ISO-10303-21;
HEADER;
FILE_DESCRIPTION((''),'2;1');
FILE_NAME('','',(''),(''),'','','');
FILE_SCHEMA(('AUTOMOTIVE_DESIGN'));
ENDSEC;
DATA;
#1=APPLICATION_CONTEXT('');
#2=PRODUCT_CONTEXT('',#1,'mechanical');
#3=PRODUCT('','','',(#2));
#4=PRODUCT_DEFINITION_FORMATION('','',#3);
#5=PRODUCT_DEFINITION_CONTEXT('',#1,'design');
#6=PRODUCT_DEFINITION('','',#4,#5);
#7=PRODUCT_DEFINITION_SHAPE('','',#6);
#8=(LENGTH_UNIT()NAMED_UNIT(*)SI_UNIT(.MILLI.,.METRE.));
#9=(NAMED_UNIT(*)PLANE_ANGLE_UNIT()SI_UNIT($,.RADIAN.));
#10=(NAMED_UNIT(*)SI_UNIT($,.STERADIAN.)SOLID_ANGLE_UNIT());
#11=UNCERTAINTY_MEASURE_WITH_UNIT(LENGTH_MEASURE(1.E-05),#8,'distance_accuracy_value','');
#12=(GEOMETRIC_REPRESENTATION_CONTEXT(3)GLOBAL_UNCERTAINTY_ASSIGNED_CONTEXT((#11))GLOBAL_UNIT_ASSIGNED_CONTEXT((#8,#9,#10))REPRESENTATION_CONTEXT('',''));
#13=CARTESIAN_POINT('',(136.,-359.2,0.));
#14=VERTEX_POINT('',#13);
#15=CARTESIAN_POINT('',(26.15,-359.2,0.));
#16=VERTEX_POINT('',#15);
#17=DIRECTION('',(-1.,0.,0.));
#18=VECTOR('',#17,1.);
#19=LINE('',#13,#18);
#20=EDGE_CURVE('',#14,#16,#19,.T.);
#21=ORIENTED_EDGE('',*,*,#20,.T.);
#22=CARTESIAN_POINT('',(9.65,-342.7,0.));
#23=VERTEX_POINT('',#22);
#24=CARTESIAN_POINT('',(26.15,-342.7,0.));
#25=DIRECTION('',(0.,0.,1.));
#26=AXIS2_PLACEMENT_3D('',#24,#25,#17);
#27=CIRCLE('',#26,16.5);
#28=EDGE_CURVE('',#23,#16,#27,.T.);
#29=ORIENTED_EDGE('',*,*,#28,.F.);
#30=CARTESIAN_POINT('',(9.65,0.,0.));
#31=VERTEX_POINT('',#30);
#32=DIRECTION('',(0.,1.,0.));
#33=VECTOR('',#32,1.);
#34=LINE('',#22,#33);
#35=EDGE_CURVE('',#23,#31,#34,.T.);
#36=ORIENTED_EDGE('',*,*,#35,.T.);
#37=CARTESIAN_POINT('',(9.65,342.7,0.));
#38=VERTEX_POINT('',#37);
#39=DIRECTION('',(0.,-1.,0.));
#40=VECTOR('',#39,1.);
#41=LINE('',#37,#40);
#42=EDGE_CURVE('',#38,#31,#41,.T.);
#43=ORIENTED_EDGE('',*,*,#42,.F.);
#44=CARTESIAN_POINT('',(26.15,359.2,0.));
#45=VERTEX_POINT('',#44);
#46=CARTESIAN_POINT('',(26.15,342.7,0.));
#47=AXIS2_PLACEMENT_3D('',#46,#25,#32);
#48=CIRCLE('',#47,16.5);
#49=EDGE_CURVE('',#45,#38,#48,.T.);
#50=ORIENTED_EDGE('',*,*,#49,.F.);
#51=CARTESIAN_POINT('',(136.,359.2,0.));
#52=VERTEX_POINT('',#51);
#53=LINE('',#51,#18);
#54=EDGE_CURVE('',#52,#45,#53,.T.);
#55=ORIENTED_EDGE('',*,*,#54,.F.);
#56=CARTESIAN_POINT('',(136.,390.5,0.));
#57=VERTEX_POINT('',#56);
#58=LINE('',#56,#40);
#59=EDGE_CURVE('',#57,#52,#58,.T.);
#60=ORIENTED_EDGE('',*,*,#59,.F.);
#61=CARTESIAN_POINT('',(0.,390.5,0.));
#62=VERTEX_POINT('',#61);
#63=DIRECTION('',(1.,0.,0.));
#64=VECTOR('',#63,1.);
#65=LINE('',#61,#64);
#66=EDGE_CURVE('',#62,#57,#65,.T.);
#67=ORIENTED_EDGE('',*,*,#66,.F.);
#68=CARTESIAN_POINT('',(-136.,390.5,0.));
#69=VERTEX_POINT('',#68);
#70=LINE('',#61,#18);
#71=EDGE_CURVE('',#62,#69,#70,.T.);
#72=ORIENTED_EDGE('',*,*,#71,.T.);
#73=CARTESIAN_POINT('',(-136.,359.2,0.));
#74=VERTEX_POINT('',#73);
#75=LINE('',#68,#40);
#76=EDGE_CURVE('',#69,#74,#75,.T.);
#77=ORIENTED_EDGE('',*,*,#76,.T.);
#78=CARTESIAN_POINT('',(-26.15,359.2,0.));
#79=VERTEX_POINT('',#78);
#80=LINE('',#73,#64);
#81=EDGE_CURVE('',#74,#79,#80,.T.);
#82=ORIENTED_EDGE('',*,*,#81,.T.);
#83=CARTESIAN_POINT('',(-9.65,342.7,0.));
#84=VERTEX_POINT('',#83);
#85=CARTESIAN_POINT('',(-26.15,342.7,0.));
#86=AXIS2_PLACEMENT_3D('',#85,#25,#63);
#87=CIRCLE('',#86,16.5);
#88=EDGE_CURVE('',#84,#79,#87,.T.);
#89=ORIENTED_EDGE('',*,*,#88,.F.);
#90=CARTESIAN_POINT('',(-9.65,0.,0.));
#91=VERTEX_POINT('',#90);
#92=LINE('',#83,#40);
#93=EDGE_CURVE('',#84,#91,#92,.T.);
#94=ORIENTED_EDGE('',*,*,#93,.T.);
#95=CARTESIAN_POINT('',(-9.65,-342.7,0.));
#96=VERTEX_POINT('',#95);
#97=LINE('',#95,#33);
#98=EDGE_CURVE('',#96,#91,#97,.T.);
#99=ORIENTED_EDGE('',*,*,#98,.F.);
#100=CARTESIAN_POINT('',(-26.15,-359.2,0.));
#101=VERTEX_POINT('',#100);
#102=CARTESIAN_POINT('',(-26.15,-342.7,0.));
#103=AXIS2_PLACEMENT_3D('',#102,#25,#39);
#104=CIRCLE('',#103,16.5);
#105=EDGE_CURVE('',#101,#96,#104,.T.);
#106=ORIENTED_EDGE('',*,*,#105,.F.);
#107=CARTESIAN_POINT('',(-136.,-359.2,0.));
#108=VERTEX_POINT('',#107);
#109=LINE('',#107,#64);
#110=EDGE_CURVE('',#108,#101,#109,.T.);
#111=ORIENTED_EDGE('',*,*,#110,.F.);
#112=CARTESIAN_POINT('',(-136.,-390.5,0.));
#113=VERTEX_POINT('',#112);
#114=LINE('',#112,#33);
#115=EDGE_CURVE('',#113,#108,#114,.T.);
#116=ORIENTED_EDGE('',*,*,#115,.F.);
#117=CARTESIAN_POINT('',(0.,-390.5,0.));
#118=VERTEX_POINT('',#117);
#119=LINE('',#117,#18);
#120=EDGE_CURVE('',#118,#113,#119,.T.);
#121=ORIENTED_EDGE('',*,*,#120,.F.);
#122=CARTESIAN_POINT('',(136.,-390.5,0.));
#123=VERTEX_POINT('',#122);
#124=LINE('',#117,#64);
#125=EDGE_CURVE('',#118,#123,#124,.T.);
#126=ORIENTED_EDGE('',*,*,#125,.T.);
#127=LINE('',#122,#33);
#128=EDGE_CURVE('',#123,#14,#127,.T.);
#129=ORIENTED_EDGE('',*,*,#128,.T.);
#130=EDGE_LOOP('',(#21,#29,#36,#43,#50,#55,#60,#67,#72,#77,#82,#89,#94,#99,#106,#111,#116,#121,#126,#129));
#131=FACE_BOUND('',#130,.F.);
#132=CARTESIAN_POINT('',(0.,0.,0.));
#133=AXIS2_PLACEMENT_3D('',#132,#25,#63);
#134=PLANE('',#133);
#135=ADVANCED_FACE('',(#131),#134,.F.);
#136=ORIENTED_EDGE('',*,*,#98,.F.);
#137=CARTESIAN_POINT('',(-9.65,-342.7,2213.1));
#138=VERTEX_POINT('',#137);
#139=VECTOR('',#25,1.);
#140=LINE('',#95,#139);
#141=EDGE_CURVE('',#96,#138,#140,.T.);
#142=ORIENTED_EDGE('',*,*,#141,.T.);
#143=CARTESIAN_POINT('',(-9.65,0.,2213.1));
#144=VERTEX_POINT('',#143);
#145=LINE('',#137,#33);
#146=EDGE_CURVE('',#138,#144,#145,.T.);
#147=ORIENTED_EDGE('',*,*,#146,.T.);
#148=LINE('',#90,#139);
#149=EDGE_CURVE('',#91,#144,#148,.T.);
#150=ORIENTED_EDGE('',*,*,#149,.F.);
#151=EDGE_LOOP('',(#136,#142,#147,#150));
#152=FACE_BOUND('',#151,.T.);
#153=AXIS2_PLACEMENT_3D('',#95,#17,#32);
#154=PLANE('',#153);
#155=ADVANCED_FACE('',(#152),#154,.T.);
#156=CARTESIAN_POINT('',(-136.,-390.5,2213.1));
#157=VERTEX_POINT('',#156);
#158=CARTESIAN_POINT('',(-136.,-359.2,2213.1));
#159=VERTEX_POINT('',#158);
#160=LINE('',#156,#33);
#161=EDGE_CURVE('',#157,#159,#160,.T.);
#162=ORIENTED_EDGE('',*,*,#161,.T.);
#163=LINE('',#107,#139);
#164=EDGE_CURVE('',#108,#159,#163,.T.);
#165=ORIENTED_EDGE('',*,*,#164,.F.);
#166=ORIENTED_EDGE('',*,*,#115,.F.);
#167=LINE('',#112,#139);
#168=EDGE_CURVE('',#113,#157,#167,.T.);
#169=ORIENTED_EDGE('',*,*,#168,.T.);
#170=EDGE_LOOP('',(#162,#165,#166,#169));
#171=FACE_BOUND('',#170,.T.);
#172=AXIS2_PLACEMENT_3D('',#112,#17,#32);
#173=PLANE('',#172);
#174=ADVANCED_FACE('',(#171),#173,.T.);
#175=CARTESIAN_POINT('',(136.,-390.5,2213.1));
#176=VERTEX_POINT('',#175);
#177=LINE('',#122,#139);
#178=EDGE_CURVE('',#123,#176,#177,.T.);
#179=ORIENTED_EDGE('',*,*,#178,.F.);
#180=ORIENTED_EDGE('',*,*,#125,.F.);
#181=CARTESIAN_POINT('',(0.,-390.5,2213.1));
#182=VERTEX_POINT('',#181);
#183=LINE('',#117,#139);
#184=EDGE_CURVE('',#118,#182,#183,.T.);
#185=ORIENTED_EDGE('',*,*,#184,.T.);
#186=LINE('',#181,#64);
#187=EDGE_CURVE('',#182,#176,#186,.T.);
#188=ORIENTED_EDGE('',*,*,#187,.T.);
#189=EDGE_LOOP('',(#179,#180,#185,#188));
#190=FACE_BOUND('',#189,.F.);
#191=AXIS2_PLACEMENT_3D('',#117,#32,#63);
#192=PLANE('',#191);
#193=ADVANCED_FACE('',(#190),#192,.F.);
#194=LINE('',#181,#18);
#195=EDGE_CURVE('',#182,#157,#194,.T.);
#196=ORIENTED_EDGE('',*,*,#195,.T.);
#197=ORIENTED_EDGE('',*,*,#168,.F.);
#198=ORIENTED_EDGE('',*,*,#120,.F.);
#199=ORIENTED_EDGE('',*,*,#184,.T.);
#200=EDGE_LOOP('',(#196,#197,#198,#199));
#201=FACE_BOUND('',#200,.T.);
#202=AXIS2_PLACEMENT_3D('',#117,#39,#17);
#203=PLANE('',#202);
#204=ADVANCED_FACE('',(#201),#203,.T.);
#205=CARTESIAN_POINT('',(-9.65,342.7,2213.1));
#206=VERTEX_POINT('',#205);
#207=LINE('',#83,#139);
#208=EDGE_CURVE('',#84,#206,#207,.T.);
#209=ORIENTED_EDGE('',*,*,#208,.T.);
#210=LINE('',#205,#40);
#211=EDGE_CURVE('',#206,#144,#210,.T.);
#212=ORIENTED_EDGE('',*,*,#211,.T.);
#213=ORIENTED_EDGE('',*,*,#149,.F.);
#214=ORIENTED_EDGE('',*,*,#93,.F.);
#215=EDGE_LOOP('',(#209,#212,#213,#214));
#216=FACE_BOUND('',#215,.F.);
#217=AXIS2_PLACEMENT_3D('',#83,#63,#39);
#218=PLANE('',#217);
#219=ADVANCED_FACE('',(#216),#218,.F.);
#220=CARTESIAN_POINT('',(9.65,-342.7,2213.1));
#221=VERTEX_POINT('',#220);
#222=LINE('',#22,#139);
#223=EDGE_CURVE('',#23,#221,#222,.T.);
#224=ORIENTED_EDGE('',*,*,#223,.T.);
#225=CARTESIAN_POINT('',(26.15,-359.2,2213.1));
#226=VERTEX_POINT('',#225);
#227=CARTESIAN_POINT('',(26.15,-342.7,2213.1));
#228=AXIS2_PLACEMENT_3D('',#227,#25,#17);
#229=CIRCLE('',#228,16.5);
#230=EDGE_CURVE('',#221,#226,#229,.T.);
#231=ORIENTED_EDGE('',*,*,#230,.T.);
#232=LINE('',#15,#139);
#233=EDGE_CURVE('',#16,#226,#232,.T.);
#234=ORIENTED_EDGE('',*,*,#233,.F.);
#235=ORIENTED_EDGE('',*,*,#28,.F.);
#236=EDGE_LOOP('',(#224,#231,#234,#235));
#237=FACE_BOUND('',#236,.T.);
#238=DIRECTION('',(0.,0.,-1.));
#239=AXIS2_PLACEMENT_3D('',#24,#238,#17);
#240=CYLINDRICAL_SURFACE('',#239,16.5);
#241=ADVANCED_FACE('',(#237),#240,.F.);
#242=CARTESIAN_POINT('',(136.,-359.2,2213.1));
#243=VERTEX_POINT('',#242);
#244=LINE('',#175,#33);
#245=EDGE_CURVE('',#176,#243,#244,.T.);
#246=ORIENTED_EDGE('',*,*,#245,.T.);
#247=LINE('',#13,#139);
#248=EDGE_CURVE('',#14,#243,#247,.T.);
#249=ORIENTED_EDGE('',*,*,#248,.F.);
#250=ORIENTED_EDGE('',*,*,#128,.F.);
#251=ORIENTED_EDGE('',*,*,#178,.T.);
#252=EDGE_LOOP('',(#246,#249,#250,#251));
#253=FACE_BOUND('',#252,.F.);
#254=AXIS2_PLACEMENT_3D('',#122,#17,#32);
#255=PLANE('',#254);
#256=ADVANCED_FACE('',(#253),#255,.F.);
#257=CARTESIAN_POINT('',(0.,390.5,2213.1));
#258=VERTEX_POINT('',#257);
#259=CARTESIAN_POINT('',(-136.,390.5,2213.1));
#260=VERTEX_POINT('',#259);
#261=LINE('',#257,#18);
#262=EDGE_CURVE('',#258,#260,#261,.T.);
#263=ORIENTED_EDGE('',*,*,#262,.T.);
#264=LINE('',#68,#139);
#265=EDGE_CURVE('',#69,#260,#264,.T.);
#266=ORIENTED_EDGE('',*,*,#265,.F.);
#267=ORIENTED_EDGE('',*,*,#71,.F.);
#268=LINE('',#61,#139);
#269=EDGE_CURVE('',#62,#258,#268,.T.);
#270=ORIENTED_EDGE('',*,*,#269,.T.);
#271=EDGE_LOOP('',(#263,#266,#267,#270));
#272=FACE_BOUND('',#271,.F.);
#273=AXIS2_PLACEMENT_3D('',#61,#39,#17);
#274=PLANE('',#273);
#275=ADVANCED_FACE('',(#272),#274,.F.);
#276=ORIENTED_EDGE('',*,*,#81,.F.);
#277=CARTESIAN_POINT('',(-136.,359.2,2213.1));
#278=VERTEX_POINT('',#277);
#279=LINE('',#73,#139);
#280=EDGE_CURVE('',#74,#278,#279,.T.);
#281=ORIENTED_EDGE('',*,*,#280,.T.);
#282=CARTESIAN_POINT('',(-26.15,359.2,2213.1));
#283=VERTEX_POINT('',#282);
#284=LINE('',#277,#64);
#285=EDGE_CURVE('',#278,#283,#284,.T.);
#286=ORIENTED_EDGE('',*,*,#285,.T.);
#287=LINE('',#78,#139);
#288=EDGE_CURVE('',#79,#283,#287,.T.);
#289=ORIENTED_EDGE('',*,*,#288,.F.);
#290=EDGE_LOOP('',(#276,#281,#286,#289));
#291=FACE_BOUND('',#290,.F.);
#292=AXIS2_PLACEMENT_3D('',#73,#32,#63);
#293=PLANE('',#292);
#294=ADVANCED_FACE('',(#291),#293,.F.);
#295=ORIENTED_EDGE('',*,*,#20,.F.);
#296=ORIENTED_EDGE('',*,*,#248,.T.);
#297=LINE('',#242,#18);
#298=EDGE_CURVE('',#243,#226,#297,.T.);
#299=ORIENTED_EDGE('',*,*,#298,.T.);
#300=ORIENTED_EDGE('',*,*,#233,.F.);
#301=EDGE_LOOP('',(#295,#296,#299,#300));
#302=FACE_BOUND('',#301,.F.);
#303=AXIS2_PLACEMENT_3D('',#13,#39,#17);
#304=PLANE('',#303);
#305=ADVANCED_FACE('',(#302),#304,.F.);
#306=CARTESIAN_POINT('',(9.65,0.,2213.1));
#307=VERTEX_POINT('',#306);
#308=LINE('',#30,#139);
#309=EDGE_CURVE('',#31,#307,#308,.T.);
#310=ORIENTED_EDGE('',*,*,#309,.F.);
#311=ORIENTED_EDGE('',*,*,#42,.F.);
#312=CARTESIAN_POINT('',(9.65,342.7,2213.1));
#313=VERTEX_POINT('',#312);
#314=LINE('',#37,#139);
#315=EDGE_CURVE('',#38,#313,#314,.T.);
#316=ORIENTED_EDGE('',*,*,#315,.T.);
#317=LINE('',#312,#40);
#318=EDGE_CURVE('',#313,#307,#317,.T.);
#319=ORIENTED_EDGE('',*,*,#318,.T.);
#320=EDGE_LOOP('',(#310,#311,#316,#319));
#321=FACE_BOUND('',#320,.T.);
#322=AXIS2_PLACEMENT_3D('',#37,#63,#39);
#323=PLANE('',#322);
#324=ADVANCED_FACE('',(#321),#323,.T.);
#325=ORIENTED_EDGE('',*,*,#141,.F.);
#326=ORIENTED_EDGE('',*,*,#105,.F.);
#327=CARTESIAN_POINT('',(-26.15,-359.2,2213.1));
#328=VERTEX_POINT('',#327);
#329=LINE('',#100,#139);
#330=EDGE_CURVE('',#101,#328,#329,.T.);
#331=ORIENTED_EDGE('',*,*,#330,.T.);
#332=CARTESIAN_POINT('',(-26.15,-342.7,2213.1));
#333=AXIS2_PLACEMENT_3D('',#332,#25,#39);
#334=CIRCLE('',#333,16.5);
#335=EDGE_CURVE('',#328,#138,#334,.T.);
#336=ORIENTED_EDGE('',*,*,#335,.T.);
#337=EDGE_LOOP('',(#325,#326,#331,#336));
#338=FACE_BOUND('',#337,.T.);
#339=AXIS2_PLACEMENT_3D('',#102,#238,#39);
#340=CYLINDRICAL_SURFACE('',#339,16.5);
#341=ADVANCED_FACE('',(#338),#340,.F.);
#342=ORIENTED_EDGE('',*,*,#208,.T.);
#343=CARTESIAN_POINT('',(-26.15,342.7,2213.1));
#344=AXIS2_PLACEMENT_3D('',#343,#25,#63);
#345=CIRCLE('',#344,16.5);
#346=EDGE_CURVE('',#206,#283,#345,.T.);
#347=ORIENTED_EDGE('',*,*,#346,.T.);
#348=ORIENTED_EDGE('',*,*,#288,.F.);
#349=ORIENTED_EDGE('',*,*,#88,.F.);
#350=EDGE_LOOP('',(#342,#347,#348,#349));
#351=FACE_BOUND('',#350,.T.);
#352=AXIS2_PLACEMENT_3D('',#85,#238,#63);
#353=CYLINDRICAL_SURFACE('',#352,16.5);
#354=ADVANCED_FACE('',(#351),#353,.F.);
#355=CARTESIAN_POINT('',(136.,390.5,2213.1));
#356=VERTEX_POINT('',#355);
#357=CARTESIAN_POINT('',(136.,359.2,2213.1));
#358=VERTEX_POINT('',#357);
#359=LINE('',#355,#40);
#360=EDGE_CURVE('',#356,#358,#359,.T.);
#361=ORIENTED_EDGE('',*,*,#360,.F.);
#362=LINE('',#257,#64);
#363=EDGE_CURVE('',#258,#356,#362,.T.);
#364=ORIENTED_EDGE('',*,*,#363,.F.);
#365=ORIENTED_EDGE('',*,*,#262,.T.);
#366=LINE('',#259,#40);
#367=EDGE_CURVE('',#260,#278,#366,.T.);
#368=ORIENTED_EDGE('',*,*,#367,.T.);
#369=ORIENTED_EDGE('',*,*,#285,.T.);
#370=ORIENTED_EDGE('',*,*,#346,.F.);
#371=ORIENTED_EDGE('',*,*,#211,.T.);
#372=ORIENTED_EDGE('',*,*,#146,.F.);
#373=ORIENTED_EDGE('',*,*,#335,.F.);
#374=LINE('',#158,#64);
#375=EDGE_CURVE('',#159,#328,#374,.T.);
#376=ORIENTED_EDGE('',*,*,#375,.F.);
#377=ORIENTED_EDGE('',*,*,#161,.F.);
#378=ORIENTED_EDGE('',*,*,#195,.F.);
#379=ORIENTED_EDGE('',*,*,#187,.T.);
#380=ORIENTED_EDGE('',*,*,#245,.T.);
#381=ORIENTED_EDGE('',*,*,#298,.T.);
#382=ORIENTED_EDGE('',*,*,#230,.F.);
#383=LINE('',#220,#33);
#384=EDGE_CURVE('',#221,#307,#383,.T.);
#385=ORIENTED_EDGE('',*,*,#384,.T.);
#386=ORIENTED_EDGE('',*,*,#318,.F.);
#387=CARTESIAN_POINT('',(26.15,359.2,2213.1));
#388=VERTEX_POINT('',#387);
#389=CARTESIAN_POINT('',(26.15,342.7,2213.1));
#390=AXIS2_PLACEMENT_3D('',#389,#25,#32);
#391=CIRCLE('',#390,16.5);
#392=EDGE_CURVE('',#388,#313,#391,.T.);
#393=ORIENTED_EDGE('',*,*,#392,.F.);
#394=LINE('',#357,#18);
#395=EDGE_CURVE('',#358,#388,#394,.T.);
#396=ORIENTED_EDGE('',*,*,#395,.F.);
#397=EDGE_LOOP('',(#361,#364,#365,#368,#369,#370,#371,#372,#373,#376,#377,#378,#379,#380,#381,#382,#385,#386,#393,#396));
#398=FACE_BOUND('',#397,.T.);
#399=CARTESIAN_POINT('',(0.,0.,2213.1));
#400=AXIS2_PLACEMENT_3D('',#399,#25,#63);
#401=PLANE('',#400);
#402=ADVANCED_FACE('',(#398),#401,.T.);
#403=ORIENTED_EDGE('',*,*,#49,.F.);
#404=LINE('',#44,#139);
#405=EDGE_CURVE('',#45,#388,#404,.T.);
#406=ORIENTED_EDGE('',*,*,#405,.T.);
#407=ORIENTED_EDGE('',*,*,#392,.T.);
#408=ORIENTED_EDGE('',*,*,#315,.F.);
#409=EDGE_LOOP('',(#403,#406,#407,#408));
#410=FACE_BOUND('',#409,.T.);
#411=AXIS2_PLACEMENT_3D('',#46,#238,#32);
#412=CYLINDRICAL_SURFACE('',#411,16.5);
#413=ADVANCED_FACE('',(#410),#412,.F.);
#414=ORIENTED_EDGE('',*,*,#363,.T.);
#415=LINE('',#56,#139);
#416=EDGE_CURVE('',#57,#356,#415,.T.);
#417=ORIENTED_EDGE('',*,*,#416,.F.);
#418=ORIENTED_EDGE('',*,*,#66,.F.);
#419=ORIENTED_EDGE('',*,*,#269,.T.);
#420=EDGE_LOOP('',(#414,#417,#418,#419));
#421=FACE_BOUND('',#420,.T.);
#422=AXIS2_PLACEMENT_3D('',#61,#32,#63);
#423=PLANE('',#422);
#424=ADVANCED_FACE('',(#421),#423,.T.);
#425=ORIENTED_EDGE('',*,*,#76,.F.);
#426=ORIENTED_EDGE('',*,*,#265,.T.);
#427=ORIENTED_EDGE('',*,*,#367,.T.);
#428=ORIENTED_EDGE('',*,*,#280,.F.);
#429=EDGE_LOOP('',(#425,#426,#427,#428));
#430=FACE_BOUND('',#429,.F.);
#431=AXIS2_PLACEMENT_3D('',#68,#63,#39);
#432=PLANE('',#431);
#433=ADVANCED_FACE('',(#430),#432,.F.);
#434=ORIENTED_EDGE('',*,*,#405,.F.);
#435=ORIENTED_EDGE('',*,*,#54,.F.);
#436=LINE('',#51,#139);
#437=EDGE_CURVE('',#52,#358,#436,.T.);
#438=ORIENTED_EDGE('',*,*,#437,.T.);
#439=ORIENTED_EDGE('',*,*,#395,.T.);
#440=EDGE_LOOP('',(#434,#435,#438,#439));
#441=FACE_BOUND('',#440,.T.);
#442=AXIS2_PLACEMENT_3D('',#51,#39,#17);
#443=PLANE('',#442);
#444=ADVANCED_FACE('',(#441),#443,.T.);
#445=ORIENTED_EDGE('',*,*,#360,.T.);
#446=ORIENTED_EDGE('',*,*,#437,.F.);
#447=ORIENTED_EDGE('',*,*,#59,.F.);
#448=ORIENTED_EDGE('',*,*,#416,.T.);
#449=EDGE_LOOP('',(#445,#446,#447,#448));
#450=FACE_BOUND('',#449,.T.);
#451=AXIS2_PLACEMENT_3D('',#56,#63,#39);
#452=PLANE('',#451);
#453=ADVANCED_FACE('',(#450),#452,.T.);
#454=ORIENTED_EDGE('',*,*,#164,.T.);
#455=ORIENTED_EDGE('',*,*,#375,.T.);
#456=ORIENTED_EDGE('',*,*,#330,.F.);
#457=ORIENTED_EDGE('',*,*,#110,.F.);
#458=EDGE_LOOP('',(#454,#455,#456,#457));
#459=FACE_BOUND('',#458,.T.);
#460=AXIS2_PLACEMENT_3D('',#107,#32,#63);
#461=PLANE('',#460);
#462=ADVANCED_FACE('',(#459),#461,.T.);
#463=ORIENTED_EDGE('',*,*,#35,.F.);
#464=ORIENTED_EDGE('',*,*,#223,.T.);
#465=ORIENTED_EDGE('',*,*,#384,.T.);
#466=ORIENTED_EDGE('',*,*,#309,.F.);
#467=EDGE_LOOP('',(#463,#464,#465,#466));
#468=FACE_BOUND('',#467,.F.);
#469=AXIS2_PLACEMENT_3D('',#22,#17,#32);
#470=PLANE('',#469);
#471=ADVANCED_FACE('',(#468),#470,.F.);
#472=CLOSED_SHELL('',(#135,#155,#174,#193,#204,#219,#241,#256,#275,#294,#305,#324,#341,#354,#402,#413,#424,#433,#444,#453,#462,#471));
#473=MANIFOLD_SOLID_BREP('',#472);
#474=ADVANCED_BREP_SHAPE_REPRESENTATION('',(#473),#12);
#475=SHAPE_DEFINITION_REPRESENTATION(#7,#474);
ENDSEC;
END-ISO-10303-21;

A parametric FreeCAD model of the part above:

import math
import FreeCAD as App
import Part
import Sketcher

doc = App.newDocument("Part")
body = doc.addObject("PartDesign::Body", "Body")

sketch1 = body.newObject("Sketcher::SketchObject", "Sketch")
sketch1.AttachmentSupport = (doc.getObject("XY_Plane"), [""])
sketch1.MapMode = "FlatFace"
sketch1.addGeometry(Part.LineSegment(App.Vector(-136, -359, 0), App.Vector(-136, -390, 0)), False)
sketch1.addGeometry(Part.LineSegment(App.Vector(-136, -390, 0), App.Vector(136, -390, 0)), False)
sketch1.addGeometry(Part.LineSegment(App.Vector(136, -390, 0), App.Vector(136, -359, 0)), False)
sketch1.addGeometry(Part.LineSegment(App.Vector(136, -359, 0), App.Vector(26, -359, 0)), False)
sketch1.addGeometry(Part.ArcOfCircle(Part.Circle(App.Vector(26, -343, 0), App.Vector(0, 0, 1), 16), math.radians(180), math.radians(270)), False)
sketch1.addGeometry(Part.LineSegment(App.Vector(10, -343, 0), App.Vector(10, 343, 0)), False)
sketch1.addGeometry(Part.ArcOfCircle(Part.Circle(App.Vector(26, 343, 0), App.Vector(0, 0, 1), 16), math.radians(90), math.radians(180)), False)
sketch1.addGeometry(Part.LineSegment(App.Vector(26, 359, 0), App.Vector(136, 359, 0)), False)
sketch1.addGeometry(Part.LineSegment(App.Vector(136, 359, 0), App.Vector(136, 390, 0)), False)
sketch1.addGeometry(Part.LineSegment(App.Vector(136, 390, 0), App.Vector(-136, 390, 0)), False)
sketch1.addGeometry(Part.LineSegment(App.Vector(-136, 390, 0), App.Vector(-136, 359, 0)), False)
sketch1.addGeometry(Part.LineSegment(App.Vector(-136, 359, 0), App.Vector(-26, 359, 0)), False)
sketch1.addGeometry(Part.ArcOfCircle(Part.Circle(App.Vector(-26, 343, 0), App.Vector(0, 0, 1), 16), math.radians(0), math.radians(90)), False)
sketch1.addGeometry(Part.LineSegment(App.Vector(-10, 343, 0), App.Vector(-10, -343, 0)), False)
sketch1.addGeometry(Part.ArcOfCircle(Part.Circle(App.Vector(-26, -343, 0), App.Vector(0, 0, 1), 16), math.radians(-90), math.radians(0)), False)
sketch1.addGeometry(Part.LineSegment(App.Vector(-26, -359, 0), App.Vector(-136, -359, 0)), False)
sketch1.addConstraint(Sketcher.Constraint("Coincident", 0, 2, 1, 1))
sketch1.addConstraint(Sketcher.Constraint("Coincident", 1, 2, 2, 1))
sketch1.addConstraint(Sketcher.Constraint("Coincident", 2, 2, 3, 1))
sketch1.addConstraint(Sketcher.Constraint("Tangent", 3, 2, 4, 2))
sketch1.addConstraint(Sketcher.Constraint("Tangent", 4, 1, 5, 1))
sketch1.addConstraint(Sketcher.Constraint("Tangent", 5, 2, 6, 2))
sketch1.addConstraint(Sketcher.Constraint("Tangent", 6, 1, 7, 1))
sketch1.addConstraint(Sketcher.Constraint("Coincident", 7, 2, 8, 1))
sketch1.addConstraint(Sketcher.Constraint("Coincident", 8, 2, 9, 1))
sketch1.addConstraint(Sketcher.Constraint("Coincident", 9, 2, 10, 1))
sketch1.addConstraint(Sketcher.Constraint("Coincident", 10, 2, 11, 1))
sketch1.addConstraint(Sketcher.Constraint("Tangent", 11, 2, 12, 2))
sketch1.addConstraint(Sketcher.Constraint("Tangent", 12, 1, 13, 1))
sketch1.addConstraint(Sketcher.Constraint("Tangent", 13, 2, 14, 2))
sketch1.addConstraint(Sketcher.Constraint("Tangent", 14, 1, 15, 1))
sketch1.addConstraint(Sketcher.Constraint("Coincident", 15, 2, 0, 1))
sketch1.addConstraint(Sketcher.Constraint("Vertical", 0))
sketch1.addConstraint(Sketcher.Constraint("Horizontal", 1))
sketch1.addConstraint(Sketcher.Constraint("Vertical", 2))
sketch1.addConstraint(Sketcher.Constraint("Horizontal", 3))
sketch1.addConstraint(Sketcher.Constraint("Vertical", 5))
sketch1.addConstraint(Sketcher.Constraint("Horizontal", 7))
sketch1.addConstraint(Sketcher.Constraint("Vertical", 8))
sketch1.addConstraint(Sketcher.Constraint("Horizontal", 9))
sketch1.addConstraint(Sketcher.Constraint("Vertical", 10))
sketch1.addConstraint(Sketcher.Constraint("Horizontal", 11))
sketch1.addConstraint(Sketcher.Constraint("Vertical", 13))
sketch1.addConstraint(Sketcher.Constraint("Horizontal", 15))
sketch1.addConstraint(Sketcher.Constraint("Equal", 4, 6))
sketch1.addConstraint(Sketcher.Constraint("Equal", 6, 12))
sketch1.addConstraint(Sketcher.Constraint("Equal", 12, 14))
sketch1.addConstraint(Sketcher.Constraint("Symmetric", 4, 3, 12, 3, -1, 1))
sketch1.addConstraint(Sketcher.Constraint("Symmetric", 0, 2, 8, 2, -1, 1))
sketch1.addConstraint(Sketcher.Constraint("Symmetric", 7, 2, 10, 2, -2))
sketch1.addConstraint(Sketcher.Constraint("Symmetric", 2, 2, 15, 2, -2))
sketch1.addConstraint(Sketcher.Constraint("Radius", 4, 16.5))
sketch1.addConstraint(Sketcher.Constraint("DistanceY", 0, 2, 0, 1, 31.3))
sketch1.addConstraint(Sketcher.Constraint("DistanceX", 0, 2, -1, 1, 136.0))
sketch1.addConstraint(Sketcher.Constraint("DistanceY", 0, 2, -1, 1, 390.5))
sketch1.addConstraint(Sketcher.Constraint("DistanceX", -1, 1, 4, 1, 9.65))
pad1 = body.newObject("PartDesign::Pad", "Pad")
pad1.Profile = sketch1
pad1.Length = 2213.1

doc.recompute()
